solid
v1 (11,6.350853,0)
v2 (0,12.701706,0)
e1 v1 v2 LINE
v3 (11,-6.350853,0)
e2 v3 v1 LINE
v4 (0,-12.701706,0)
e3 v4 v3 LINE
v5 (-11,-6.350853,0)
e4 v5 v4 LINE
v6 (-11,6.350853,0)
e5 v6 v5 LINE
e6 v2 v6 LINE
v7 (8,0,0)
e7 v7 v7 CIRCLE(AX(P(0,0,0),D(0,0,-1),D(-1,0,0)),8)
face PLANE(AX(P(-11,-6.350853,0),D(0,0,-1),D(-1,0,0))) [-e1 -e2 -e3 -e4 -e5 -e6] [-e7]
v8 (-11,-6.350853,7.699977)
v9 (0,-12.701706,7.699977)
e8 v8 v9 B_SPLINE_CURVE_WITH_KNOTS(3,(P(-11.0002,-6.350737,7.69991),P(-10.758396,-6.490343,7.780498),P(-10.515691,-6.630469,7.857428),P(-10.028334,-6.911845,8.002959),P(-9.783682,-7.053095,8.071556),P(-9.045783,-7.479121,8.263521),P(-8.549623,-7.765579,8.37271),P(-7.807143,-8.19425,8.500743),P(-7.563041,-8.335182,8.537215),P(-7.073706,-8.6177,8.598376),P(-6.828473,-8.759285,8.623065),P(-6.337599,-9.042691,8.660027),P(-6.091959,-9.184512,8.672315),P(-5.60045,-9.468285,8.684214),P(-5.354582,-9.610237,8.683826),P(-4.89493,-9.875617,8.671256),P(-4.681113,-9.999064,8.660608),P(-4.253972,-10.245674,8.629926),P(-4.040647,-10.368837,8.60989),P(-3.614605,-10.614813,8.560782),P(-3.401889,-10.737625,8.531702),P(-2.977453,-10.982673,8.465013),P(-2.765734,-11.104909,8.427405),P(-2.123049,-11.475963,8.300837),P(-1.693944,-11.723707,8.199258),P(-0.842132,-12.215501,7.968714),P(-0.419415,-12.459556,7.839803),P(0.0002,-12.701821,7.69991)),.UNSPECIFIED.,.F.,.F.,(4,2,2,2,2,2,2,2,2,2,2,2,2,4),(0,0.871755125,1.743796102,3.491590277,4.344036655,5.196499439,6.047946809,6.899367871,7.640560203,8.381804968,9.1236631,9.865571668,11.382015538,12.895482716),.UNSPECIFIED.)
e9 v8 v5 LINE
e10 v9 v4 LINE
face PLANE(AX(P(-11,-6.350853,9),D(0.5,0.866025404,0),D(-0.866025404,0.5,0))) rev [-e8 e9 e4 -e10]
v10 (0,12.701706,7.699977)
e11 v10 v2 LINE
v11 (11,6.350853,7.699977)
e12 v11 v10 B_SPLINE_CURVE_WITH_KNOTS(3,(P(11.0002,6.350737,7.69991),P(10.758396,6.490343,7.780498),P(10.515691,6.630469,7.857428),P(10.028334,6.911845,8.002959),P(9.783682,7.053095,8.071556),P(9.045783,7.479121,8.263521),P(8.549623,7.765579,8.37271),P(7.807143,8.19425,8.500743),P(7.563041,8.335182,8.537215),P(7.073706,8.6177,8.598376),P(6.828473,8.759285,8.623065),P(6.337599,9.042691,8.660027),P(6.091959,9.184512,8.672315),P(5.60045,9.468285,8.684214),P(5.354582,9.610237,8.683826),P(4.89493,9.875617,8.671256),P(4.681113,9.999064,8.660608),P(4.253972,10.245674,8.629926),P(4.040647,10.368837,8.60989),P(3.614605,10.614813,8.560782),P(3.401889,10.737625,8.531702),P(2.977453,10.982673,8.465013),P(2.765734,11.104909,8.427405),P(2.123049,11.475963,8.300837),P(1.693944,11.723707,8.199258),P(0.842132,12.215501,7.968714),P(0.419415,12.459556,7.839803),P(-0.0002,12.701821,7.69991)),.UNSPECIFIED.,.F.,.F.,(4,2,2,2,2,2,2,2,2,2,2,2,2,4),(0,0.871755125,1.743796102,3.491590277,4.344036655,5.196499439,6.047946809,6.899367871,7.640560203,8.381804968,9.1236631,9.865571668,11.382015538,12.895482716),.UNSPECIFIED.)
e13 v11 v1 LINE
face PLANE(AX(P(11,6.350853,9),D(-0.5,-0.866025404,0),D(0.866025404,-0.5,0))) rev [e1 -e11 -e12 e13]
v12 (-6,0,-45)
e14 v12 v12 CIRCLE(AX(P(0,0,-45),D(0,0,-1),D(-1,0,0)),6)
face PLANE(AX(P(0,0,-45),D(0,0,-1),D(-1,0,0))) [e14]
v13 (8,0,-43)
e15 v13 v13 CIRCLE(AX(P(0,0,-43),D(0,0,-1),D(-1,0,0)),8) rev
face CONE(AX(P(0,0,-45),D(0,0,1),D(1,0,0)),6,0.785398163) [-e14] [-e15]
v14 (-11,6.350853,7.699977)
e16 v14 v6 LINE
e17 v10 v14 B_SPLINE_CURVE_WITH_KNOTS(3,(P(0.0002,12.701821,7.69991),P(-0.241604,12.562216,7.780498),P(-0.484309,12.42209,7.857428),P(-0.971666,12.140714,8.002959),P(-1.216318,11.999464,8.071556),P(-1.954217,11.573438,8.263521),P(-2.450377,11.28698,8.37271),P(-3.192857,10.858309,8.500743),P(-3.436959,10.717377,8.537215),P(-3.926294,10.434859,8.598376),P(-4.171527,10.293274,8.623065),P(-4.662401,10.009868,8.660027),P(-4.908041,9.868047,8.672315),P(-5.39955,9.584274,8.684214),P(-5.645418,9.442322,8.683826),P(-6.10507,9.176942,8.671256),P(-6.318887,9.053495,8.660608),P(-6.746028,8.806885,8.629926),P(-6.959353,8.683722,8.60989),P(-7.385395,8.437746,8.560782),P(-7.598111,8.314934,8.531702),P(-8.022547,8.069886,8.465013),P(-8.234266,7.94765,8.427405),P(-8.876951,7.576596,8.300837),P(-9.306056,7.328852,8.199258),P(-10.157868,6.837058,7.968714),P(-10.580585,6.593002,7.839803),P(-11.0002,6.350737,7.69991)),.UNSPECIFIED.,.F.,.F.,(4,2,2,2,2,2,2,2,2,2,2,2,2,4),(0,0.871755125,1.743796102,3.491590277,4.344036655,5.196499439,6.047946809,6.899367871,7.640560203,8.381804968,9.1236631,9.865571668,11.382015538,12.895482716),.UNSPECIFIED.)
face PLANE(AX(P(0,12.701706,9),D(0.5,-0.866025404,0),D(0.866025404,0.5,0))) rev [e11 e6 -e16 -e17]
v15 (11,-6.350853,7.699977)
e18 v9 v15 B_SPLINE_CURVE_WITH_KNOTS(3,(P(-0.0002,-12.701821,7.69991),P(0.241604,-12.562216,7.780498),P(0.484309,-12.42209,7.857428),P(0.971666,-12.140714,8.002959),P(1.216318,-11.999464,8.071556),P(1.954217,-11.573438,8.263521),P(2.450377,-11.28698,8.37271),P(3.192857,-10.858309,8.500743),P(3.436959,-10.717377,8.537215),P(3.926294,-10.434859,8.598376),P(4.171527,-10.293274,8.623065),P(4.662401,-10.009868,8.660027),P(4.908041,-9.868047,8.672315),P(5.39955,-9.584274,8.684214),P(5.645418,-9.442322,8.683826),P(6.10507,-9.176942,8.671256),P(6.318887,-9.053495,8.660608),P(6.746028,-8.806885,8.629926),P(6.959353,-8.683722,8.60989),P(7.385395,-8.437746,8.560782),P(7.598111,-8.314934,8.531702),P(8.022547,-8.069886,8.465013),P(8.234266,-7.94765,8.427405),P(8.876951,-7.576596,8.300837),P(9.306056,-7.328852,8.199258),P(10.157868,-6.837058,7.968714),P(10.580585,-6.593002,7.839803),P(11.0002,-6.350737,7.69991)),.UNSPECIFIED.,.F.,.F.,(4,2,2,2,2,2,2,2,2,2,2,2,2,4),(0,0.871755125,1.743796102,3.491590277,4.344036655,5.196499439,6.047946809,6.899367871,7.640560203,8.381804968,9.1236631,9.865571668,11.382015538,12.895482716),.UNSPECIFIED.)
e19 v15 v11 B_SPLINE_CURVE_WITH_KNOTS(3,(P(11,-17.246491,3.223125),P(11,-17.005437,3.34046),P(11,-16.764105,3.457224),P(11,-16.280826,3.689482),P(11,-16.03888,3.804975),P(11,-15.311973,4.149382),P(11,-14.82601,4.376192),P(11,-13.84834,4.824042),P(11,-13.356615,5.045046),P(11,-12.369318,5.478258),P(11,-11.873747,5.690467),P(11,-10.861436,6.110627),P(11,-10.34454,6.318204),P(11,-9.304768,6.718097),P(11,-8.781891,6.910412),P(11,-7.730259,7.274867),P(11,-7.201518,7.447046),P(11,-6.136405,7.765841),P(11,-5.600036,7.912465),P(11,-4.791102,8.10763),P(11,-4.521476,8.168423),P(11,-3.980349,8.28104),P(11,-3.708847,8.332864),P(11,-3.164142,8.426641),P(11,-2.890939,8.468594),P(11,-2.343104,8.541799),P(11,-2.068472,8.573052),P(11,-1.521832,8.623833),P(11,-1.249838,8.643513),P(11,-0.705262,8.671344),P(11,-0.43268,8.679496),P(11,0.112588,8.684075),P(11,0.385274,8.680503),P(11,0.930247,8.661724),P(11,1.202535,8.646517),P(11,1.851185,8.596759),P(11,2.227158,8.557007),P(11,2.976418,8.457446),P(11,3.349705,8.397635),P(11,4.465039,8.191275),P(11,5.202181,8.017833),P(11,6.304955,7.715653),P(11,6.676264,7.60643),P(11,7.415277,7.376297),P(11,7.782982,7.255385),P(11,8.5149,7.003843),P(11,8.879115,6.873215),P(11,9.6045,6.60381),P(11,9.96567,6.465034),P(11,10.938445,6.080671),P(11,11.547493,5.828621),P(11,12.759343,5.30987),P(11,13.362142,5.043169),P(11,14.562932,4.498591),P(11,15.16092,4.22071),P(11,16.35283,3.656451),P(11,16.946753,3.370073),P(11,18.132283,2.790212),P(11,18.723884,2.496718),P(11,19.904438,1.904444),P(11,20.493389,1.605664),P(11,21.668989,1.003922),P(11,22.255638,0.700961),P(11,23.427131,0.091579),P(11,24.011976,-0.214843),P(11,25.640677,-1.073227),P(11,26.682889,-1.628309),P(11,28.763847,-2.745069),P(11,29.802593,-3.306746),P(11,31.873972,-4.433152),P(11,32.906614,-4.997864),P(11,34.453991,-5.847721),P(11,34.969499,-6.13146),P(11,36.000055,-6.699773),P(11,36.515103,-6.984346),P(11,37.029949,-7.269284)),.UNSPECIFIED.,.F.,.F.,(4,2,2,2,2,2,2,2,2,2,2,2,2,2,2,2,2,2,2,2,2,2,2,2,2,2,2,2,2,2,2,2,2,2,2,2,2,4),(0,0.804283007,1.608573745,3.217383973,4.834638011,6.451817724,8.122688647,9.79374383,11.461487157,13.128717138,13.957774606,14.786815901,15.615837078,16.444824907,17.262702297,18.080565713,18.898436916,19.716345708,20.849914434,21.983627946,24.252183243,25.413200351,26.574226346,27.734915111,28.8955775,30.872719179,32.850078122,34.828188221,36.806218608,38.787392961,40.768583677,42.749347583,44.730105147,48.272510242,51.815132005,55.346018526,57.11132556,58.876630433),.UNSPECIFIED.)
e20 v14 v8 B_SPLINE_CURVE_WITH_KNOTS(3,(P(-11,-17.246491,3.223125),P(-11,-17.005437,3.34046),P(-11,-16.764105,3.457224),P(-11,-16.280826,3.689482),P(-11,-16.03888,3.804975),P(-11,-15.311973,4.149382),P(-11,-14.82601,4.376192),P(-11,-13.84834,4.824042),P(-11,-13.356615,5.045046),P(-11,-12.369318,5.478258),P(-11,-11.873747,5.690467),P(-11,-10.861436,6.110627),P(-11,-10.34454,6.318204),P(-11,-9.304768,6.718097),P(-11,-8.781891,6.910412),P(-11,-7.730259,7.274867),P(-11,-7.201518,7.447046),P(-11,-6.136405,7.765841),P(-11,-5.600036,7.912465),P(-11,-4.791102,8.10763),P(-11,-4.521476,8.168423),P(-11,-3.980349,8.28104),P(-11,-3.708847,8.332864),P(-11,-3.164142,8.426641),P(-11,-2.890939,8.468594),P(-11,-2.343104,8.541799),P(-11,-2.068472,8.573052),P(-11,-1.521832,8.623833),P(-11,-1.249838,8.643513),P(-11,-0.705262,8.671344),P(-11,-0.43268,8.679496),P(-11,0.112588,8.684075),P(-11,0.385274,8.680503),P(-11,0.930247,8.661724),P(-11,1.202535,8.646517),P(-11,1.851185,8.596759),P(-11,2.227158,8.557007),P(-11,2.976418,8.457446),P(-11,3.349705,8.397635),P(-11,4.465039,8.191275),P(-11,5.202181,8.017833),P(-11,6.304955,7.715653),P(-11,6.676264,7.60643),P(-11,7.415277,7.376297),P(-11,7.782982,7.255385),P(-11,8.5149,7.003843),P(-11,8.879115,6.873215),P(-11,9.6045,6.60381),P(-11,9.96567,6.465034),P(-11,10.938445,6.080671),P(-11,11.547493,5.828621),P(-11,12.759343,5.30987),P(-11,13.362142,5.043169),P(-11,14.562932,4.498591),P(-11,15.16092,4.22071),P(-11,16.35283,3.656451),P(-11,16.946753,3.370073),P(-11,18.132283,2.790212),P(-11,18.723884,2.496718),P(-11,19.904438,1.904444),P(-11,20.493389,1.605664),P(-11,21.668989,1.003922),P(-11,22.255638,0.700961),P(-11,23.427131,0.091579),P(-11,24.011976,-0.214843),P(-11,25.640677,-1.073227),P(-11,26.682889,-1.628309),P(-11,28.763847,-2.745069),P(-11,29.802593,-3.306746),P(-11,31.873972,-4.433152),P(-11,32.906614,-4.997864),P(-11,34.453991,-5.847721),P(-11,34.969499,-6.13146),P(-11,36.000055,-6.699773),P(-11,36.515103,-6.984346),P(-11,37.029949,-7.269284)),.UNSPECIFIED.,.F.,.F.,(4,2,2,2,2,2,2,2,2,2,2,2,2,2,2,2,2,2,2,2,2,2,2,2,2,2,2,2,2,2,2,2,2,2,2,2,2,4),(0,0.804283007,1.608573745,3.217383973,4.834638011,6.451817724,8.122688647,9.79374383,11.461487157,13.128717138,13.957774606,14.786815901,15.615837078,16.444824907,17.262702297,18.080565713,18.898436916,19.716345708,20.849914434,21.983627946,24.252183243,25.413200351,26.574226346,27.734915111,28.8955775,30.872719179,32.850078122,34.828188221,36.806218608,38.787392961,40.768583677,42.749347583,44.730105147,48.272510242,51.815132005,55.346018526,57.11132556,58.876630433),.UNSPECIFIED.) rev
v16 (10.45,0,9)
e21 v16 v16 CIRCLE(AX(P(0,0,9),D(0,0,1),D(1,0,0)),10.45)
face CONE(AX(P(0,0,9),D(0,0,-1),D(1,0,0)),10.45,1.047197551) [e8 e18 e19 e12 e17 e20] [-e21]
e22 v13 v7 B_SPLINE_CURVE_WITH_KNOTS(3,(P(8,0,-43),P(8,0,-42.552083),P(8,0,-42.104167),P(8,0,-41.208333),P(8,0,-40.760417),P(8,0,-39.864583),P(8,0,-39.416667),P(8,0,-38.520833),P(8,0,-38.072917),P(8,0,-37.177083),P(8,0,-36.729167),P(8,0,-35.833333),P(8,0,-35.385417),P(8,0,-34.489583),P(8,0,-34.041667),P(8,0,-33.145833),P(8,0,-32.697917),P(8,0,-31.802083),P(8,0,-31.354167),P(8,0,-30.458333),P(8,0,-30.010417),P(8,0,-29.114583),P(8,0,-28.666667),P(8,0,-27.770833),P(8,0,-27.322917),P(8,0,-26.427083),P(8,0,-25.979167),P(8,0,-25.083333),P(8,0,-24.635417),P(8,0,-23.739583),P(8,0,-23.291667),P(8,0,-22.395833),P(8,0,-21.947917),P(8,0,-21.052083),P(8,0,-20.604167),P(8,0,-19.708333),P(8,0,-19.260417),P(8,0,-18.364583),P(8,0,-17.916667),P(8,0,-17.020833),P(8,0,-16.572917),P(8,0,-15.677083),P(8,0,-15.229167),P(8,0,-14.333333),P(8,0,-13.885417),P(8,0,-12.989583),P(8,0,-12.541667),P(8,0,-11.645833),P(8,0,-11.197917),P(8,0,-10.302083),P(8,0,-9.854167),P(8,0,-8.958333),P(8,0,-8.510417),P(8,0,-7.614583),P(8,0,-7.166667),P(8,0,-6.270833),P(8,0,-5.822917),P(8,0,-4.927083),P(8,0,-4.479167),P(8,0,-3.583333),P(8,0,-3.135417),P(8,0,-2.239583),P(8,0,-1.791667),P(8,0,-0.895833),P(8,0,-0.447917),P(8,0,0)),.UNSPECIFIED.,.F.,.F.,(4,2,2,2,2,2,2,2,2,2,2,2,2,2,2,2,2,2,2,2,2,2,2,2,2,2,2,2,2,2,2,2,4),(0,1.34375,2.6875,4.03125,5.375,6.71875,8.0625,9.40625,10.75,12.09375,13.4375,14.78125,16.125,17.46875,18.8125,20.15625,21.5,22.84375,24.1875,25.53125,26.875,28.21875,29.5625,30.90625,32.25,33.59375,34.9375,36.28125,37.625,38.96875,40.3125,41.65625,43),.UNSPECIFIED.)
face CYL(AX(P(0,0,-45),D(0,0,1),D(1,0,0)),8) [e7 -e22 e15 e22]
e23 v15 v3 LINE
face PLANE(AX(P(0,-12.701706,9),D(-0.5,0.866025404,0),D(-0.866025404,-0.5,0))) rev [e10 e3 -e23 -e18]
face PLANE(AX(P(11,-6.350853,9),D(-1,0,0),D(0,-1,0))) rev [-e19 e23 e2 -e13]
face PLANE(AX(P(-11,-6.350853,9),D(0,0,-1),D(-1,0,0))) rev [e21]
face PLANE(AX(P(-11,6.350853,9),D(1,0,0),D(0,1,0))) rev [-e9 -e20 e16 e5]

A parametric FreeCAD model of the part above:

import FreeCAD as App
import Part
import Sketcher
Q = App.Units.Quantity


def edges_at(feature, points):
    """Names of the edges that pass closest to the given points."""
    edges = feature.Shape.Edges
    near = lambda p: min(range(len(edges)), key=lambda i: edges[i].distToShape(Part.Vertex(*p))[0])
    return sorted({f"Edge{near(p) + 1}" for p in points})


def faces_at(feature, points):
    """Names of the faces that lie closest to the given points."""
    faces = feature.Shape.Faces
    near = lambda p: min(range(len(faces)), key=lambda i: faces[i].distToShape(Part.Vertex(*p))[0])
    return sorted({f"Face{near(p) + 1}" for p in points})

doc = App.newDocument("Part")
params = doc.addObject("Spreadsheet::Sheet", "Params")
for row, (alias, value) in enumerate([
    ("pad1_length", "9 mm"),
    ("sketch2_diameter", "20.9 mm"),
    ("pad2_length", "10 mm"),
    ("draft_angle", "60 deg"),
    ("sketch3_diameter", "16 mm"),
    ("pad3_length", "45 mm"),
    ("chamfer_size", "2 mm"),
], start=1):
    params.set(f"A{row}", alias)
    params.set(f"B{row}", "=" + value)
    params.setAlias(f"B{row}", alias)

body = doc.addObject("PartDesign::Body", "Body")

sketch1 = body.newObject("Sketcher::SketchObject", "Sketch")
sketch1.AttachmentSupport = (doc.getObject("XY_Plane"), [""])
sketch1.MapMode = "FlatFace"
sketch1.addGeometry([
    Part.LineSegment(App.Vector(0, -12.701706, 0), App.Vector(11, -6.350853, 0)),
    Part.LineSegment(App.Vector(11, -6.350853, 0), App.Vector(11, 6.350853, 0)),
    Part.LineSegment(App.Vector(11, 6.350853, 0), App.Vector(0, 12.701706, 0)),
    Part.LineSegment(App.Vector(0, 12.701706, 0), App.Vector(-11, 6.350853, 0)),
    Part.LineSegment(App.Vector(-11, 6.350853, 0), App.Vector(-11, -6.350853, 0)),
    Part.LineSegment(App.Vector(-11, -6.350853, 0), App.Vector(0, -12.701706, 0)),
], False)
sketch1.addConstraint([
    Sketcher.Constraint("Coincident", 0, 2, 1, 1),
    Sketcher.Constraint("Coincident", 1, 2, 2, 1),
    Sketcher.Constraint("Coincident", 2, 2, 3, 1),
    Sketcher.Constraint("Coincident", 3, 2, 4, 1),
    Sketcher.Constraint("Coincident", 4, 2, 5, 1),
    Sketcher.Constraint("Coincident", 5, 2, 0, 1),
    Sketcher.Constraint("Vertical", 1),
    Sketcher.Constraint("Vertical", 4),
    Sketcher.Constraint("Symmetric", 0, 2, 3, 2, -1, 1),
    Sketcher.Constraint("Symmetric", 2, 2, 5, 2, -1, 1),
    Sketcher.Constraint("PointOnObject", 2, 2, -2),
    Sketcher.Constraint("Parallel", 2, 5),
    Sketcher.Constraint("Horizontal", 1, 2, 3, 2),
    Sketcher.Constraint("Angle", 0, Q("30 deg")),
    Sketcher.Constraint("DistanceX", -1, 1, 0, 2, 11.0),
    Sketcher.Constraint("DistanceY", 1, 1, 1, 2, 12.701706),
])
pad1 = body.newObject("PartDesign::Pad", "Pad")
pad1.Profile = sketch1
pad1.setExpression("Length", "Params.pad1_length")
body2 = doc.addObject("PartDesign::Body", "Body001")

sketch2 = body2.newObject("Sketcher::SketchObject", "Sketch001")
sketch2.AttachmentSupport = (doc.getObject("XY_Plane001"), [""])
sketch2.MapMode = "FlatFace"
sketch2.AttachmentOffset = App.Placement(App.Vector(0, 0, 9), App.Rotation())
sketch2.addGeometry([
    Part.LineSegment(App.Vector(-32.799, 34.501, 0), App.Vector(-32.799, -34.501, 0)),
    Part.LineSegment(App.Vector(-32.799, -34.501, 0), App.Vector(32.799, -34.501, 0)),
    Part.LineSegment(App.Vector(32.799, -34.501, 0), App.Vector(32.799, 34.501, 0)),
    Part.LineSegment(App.Vector(32.799, 34.501, 0), App.Vector(-32.799, 34.501, 0)),
    Part.Circle(App.Vector(0, 0, 0), App.Vector(0, 0, 1), 10.45),
], False)
sketch2.addConstraint([
    Sketcher.Constraint("Coincident", 0, 2, 1, 1),
    Sketcher.Constraint("Coincident", 1, 2, 2, 1),
    Sketcher.Constraint("Coincident", 2, 2, 3, 1),
    Sketcher.Constraint("Coincident", 3, 2, 0, 1),
    Sketcher.Constraint("Vertical", 0),
    Sketcher.Constraint("Horizontal", 1),
    Sketcher.Constraint("Vertical", 2),
    Sketcher.Constraint("Horizontal", 3),
    Sketcher.Constraint("Coincident", 4, 3, -1, 1),
    Sketcher.Constraint("Symmetric", 0, 2, 2, 2, -1, 1),
    Sketcher.Constraint("Diameter", 4, 20.9),
    Sketcher.Constraint("DistanceX", 1, 1, 1, 2, 65.598),
    Sketcher.Constraint("DistanceY", 0, 2, 0, 1, 69.002),
])
sketch2.setExpression("Constraints[10]", "Params.sketch2_diameter")
pad2 = body2.newObject("PartDesign::Pad", "Pad001")
pad2.Profile = sketch2
pad2.setExpression("Length", "Params.pad2_length")
pad2.Reversed = True
doc.recompute()

datumplane = body2.newObject("PartDesign::Plane", "DatumPlane")
datumplane.AttachmentSupport = (doc.getObject("XY_Plane001"), [""])
datumplane.MapMode = "FlatFace"
datumplane.AttachmentOffset = App.Placement(App.Vector(0, 0, 9), App.Rotation())
draft = body2.newObject("PartDesign::Draft", "Draft")
draft.Base = (pad2, faces_at(pad2, [
    (0, -34.501, 4),
    (32.799, 0, 4),
    (0, 34.501, 4),
    (-32.799, 0, 4),
    (-10.45, 0, 4),
]))
draft.NeutralPlane = (datumplane, [""])
draft.setExpression("Angle", "Params.draft_angle")
draft.Reversed = True
doc.recompute()

boolean = body.newObject("PartDesign::Boolean", "Boolean")
boolean.Type = "Cut"
boolean.addObjects([body2])

sketch3 = body.newObject("Sketcher::SketchObject", "Sketch002")
sketch3.AttachmentSupport = (doc.getObject("XY_Plane"), [""])
sketch3.MapMode = "FlatFace"
sketch3.addGeometry(Part.Circle(App.Vector(0, 0, 0), App.Vector(0, 0, 1), 8), False)
sketch3.addConstraint([
    Sketcher.Constraint("Coincident", 0, 3, -1, 1),
    Sketcher.Constraint("Diameter", 0, 16.0),
])
sketch3.setExpression("Constraints[1]", "Params.sketch3_diameter")
pad3 = body.newObject("PartDesign::Pad", "Pad002")
pad3.Profile = sketch3
pad3.setExpression("Length", "Params.pad3_length")
pad3.Reversed = True
doc.recompute()

chamfer = body.newObject("PartDesign::Chamfer", "Chamfer")
chamfer.Base = (pad3, edges_at(pad3, [(-8, 0, -45)]))
chamfer.setExpression("Size", "Params.chamfer_size")

doc.recompute()
